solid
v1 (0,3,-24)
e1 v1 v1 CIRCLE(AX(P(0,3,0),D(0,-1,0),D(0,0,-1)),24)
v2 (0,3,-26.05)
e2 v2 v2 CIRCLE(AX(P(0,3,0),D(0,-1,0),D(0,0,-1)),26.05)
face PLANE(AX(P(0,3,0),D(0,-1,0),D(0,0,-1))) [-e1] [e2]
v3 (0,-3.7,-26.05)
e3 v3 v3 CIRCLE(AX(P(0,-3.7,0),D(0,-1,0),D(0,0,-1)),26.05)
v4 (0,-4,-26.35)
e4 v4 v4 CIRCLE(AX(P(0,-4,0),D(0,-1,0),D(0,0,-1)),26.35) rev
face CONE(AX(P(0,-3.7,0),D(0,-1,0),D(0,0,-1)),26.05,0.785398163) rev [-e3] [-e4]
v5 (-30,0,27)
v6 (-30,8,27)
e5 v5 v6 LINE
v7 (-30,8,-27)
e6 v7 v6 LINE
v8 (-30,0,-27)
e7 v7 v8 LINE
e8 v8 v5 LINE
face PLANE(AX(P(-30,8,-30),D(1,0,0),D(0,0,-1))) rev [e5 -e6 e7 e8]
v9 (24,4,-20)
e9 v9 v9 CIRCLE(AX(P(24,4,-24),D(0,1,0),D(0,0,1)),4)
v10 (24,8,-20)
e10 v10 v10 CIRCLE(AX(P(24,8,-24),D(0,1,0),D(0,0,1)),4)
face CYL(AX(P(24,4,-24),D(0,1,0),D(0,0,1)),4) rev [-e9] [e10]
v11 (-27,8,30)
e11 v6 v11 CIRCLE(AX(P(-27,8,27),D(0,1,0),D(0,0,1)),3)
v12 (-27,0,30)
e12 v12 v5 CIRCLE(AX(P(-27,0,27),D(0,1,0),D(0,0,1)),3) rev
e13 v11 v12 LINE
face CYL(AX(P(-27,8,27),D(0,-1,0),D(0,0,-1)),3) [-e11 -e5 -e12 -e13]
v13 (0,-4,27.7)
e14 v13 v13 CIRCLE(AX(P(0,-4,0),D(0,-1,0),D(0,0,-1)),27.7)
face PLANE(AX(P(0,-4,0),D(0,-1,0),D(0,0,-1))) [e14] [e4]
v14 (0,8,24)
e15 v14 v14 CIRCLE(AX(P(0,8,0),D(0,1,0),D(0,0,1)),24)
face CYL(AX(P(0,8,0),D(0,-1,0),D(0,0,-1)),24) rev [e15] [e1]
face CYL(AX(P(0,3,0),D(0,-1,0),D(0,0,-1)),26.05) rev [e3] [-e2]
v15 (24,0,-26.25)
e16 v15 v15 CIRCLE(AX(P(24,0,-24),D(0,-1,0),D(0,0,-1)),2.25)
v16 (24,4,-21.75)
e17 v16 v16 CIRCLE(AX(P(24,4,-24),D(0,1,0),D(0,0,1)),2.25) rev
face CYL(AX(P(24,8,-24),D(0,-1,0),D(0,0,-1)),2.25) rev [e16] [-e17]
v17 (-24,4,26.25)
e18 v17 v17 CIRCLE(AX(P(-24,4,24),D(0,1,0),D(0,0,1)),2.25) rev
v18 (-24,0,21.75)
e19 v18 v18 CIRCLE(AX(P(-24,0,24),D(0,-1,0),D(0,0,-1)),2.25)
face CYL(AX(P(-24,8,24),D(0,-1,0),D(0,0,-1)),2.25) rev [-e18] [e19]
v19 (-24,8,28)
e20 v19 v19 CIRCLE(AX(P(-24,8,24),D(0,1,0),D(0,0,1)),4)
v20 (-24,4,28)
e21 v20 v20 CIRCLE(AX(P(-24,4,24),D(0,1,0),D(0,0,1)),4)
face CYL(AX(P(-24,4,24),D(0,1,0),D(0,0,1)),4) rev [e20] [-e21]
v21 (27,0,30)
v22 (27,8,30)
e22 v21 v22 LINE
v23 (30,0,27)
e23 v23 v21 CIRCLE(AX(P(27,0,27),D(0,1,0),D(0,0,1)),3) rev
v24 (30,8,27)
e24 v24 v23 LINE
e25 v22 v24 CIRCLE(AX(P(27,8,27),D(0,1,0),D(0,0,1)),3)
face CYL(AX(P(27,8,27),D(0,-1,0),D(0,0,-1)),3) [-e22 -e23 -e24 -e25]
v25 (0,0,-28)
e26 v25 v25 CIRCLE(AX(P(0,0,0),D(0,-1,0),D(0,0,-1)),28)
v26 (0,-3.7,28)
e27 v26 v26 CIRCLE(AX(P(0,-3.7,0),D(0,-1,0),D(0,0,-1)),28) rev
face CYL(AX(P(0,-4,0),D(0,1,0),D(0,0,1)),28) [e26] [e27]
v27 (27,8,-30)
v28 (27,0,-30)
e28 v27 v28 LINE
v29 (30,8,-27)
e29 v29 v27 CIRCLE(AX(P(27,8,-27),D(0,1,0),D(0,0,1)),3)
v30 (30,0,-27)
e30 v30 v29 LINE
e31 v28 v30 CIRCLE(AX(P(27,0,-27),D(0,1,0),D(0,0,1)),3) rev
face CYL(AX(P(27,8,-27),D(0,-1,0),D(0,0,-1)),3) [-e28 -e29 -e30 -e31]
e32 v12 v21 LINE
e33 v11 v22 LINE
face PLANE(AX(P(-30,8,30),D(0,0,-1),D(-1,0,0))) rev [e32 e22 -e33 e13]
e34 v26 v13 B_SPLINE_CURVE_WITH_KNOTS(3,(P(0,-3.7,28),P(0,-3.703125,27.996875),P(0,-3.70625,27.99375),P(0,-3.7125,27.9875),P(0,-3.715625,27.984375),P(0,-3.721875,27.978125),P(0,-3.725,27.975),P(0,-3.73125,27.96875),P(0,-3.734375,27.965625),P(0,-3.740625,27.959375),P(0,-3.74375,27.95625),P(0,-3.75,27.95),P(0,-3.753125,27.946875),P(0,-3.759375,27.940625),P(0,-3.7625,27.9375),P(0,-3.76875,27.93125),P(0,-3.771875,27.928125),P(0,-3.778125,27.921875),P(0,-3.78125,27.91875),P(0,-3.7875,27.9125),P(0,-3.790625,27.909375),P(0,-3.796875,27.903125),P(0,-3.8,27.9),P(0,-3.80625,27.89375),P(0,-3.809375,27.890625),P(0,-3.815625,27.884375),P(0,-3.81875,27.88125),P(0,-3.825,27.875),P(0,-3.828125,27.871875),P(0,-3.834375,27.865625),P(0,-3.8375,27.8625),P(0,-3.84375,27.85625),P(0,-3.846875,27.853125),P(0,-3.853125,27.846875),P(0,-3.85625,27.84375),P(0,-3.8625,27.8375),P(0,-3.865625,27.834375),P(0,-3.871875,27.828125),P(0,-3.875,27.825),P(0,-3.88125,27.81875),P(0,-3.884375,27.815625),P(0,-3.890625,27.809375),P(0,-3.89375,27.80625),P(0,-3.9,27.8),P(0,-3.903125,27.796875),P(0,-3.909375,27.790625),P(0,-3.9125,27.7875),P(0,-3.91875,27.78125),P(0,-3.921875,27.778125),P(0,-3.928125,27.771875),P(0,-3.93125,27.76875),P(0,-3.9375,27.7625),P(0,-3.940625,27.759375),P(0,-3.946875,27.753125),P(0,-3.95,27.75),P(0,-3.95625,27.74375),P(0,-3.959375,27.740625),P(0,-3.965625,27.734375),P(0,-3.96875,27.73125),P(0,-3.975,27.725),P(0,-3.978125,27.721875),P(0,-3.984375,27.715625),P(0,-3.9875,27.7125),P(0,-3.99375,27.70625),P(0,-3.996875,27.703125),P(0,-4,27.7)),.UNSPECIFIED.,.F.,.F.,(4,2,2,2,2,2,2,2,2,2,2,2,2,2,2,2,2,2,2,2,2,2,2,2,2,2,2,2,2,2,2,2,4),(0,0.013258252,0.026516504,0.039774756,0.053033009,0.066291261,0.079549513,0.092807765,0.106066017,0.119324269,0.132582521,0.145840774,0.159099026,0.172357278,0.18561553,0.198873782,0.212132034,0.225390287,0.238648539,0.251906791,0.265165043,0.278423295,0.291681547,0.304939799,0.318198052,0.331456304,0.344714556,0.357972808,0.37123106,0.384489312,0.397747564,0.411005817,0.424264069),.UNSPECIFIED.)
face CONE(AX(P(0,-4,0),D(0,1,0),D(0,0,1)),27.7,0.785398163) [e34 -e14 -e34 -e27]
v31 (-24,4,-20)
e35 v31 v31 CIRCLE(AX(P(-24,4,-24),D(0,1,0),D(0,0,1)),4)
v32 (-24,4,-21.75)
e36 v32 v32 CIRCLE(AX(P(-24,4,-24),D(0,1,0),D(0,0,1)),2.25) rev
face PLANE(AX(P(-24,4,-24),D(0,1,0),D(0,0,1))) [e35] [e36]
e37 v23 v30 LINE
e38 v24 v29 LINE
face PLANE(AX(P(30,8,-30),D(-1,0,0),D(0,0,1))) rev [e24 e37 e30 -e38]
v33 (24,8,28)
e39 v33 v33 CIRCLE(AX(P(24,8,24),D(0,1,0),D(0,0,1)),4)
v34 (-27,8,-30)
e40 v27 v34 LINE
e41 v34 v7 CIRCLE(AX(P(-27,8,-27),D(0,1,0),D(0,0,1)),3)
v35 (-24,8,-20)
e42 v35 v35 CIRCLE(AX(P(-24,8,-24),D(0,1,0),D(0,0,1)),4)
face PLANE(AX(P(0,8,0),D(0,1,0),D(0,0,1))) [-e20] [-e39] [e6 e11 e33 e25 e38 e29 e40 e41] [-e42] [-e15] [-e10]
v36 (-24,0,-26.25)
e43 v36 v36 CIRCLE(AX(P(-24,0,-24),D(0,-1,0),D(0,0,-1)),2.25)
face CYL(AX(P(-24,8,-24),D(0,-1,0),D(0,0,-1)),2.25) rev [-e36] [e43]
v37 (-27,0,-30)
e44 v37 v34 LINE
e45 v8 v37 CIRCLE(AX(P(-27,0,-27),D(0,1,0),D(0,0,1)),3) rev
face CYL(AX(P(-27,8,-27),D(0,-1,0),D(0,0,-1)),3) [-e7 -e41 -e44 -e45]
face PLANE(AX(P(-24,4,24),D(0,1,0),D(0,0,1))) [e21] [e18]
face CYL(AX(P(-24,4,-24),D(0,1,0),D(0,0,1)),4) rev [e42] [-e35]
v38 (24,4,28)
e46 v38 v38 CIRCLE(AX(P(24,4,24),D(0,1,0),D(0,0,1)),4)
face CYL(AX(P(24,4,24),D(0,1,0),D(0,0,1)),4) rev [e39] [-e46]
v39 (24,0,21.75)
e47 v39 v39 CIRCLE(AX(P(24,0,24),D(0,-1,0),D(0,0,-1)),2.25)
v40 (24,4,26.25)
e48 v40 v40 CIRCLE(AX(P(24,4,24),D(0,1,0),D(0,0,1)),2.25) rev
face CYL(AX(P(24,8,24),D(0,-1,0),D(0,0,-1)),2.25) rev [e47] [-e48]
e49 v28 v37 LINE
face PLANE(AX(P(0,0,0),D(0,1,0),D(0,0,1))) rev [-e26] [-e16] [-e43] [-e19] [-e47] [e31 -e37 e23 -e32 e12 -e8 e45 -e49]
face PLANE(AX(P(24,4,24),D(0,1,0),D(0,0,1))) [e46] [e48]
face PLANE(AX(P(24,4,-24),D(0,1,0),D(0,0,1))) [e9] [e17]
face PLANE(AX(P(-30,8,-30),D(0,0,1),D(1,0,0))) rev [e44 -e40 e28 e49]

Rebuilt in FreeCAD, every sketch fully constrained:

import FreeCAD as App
import Part
import Sketcher
Q = App.Units.Quantity


def edges_at(feature, points):
    """Names of the edges that pass closest to the given points."""
    edges = feature.Shape.Edges
    near = lambda p: min(range(len(edges)), key=lambda i: edges[i].distToShape(Part.Vertex(*p))[0])
    return sorted({f"Edge{near(p) + 1}" for p in points})

doc = App.newDocument("Part")
body = doc.addObject("PartDesign::Body", "Body")

sketch1 = body.newObject("Sketcher::SketchObject", "Sketch")
sketch1.AttachmentSupport = (doc.getObject("XZ_Plane"), [""])
sketch1.MapMode = "FlatFace"
sketch1.addGeometry(Part.LineSegment(App.Vector(-30, -30, 0), App.Vector(-30, 30, 0)), False)
sketch1.addGeometry(Part.LineSegment(App.Vector(-30, 30, 0), App.Vector(30, 30, 0)), False)
sketch1.addGeometry(Part.LineSegment(App.Vector(30, 30, 0), App.Vector(30, -30, 0)), False)
sketch1.addGeometry(Part.LineSegment(App.Vector(30, -30, 0), App.Vector(-30, -30, 0)), False)
sketch1.addGeometry(Part.Circle(App.Vector(0, 0, 0), App.Vector(0, 0, 1), 24), False)
sketch1.addConstraint(Sketcher.Constraint("Coincident", 0, 2, 1, 1))
sketch1.addConstraint(Sketcher.Constraint("Coincident", 1, 2, 2, 1))
sketch1.addConstraint(Sketcher.Constraint("Coincident", 2, 2, 3, 1))
sketch1.addConstraint(Sketcher.Constraint("Coincident", 3, 2, 0, 1))
sketch1.addConstraint(Sketcher.Constraint("Vertical", 0))
sketch1.addConstraint(Sketcher.Constraint("Horizontal", 1))
sketch1.addConstraint(Sketcher.Constraint("Vertical", 2))
sketch1.addConstraint(Sketcher.Constraint("Horizontal", 3))
sketch1.addConstraint(Sketcher.Constraint("Coincident", 4, 3, -1, 1))
sketch1.addConstraint(Sketcher.Constraint("Symmetric", 0, 2, 2, 2, -1, 1))
sketch1.addConstraint(Sketcher.Constraint("Equal", 3, 0))
sketch1.addConstraint(Sketcher.Constraint("Diameter", 4, Q("48 mm")))
sketch1.addConstraint(Sketcher.Constraint("DistanceX", 1, 1, 1, 2, Q("60 mm")))
pad1 = body.newObject("PartDesign::Pad", "Pad")
pad1.Profile = sketch1
pad1.Length = 8
pad1.Reversed = True

sketch2 = body.newObject("Sketcher::SketchObject", "Sketch001")
sketch2.AttachmentSupport = (doc.getObject("XZ_Plane"), [""])
sketch2.MapMode = "FlatFace"
sketch2.addGeometry(Part.Circle(App.Vector(0, 0, 0), App.Vector(0, 0, 1), 28), False)
sketch2.addGeometry(Part.Circle(App.Vector(0, 0, 0), App.Vector(0, 0, 1), 26), False)
sketch2.addConstraint(Sketcher.Constraint("Coincident", 0, 3, -1, 1))
sketch2.addConstraint(Sketcher.Constraint("Coincident", 1, 3, -1, 1))
sketch2.addConstraint(Sketcher.Constraint("Diameter", 0, Q("56 mm")))
sketch2.addConstraint(Sketcher.Constraint("Diameter", 1, Q("52 mm")))
pad2 = body.newObject("PartDesign::Pad", "Pad001")
pad2.Profile = sketch2
pad2.Length = 4

sketch3 = body.newObject("Sketcher::SketchObject", "Sketch002")
sketch3.AttachmentSupport = (doc.getObject("XZ_Plane"), [""])
sketch3.MapMode = "FlatFace"
sketch3.addGeometry(Part.Circle(App.Vector(-24, 24, 0), App.Vector(0, 0, 1), 2.2), False)
sketch3.addGeometry(Part.Circle(App.Vector(24, 24, 0), App.Vector(0, 0, 1), 2.2), False)
sketch3.addGeometry(Part.Circle(App.Vector(24, -24, 0), App.Vector(0, 0, 1), 2.2), False)
sketch3.addGeometry(Part.Circle(App.Vector(-24, -24, 0), App.Vector(0, 0, 1), 2.2), False)
sketch3.addConstraint(Sketcher.Constraint("Equal", 0, 1))
sketch3.addConstraint(Sketcher.Constraint("Equal", 1, 2))
sketch3.addConstraint(Sketcher.Constraint("Equal", 2, 3))
sketch3.addConstraint(Sketcher.Constraint("Symmetric", 0, 3, 2, 3, -1, 1))
sketch3.addConstraint(Sketcher.Constraint("Symmetric", 1, 3, 3, 3, -1, 1))
sketch3.addConstraint(Sketcher.Constraint("Symmetric", 0, 3, 1, 3, -2))
sketch3.addConstraint(Sketcher.Constraint("Diameter", 0, Q("4.5 mm")))
sketch3.addConstraint(Sketcher.Constraint("DistanceX", 0, 3, -1, 1, Q("24 mm")))
sketch3.addConstraint(Sketcher.Constraint("DistanceY", -1, 1, 0, 3, Q("24 mm")))
pocket1 = body.newObject("PartDesign::Pocket", "Pocket")
pocket1.Profile = sketch3
pocket1.Type = "ThroughAll"
doc.recompute()

fillet = body.newObject("PartDesign::Fillet", "Fillet")
fillet.Base = (pocket1, edges_at(pocket1, [
    (30, 4, 30),
    (-30, 4, 30),
    (-30, 4, -30),
    (30, 4, -30),
]))
fillet.Radius = 3

sketch4 = body.newObject("Sketcher::SketchObject", "Sketch003")
sketch4.AttachmentSupport = (doc.getObject("XZ_Plane"), [""])
sketch4.MapMode = "FlatFace"
sketch4.AttachmentOffset = App.Placement(App.Vector(0, 0, 4), App.Rotation())
sketch4.addGeometry(Part.Circle(App.Vector(0, 0, 0), App.Vector(0, 0, 1), 26), False)
sketch4.addConstraint(Sketcher.Constraint("Coincident", 0, 3, -1, 1))
sketch4.addConstraint(Sketcher.Constraint("Diameter", 0, Q("52.1 mm")))
pocket2 = body.newObject("PartDesign::Pocket", "Pocket001")
pocket2.Profile = sketch4
pocket2.Length = 7

sketch5 = body.newObject("Sketcher::SketchObject", "Sketch004")
sketch5.AttachmentSupport = (doc.getObject("XZ_Plane"), [""])
sketch5.MapMode = "FlatFace"
sketch5.AttachmentOffset = App.Placement(App.Vector(0, 0, -8), App.Rotation())
sketch5.addGeometry(Part.Circle(App.Vector(-24, -24, 0), App.Vector(0, 0, 1), 4), False)
sketch5.addGeometry(Part.Circle(App.Vector(24, -24, 0), App.Vector(0, 0, 1), 4), False)
sketch5.addGeometry(Part.Circle(App.Vector(24, 24, 0), App.Vector(0, 0, 1), 4), False)
sketch5.addGeometry(Part.Circle(App.Vector(-24, 24, 0), App.Vector(0, 0, 1), 4), False)
sketch5.addConstraint(Sketcher.Constraint("Equal", 0, 1))
sketch5.addConstraint(Sketcher.Constraint("Equal", 1, 2))
sketch5.addConstraint(Sketcher.Constraint("Equal", 2, 3))
sketch5.addConstraint(Sketcher.Constraint("Symmetric", 0, 3, 2, 3, -1, 1))
sketch5.addConstraint(Sketcher.Constraint("Symmetric", 1, 3, 3, 3, -1, 1))
sketch5.addConstraint(Sketcher.Constraint("Symmetric", 0, 3, 1, 3, -2))
sketch5.addConstraint(Sketcher.Constraint("Diameter", 0, Q("8 mm")))
sketch5.addConstraint(Sketcher.Constraint("DistanceX", 0, 3, -1, 1, Q("24 mm")))
sketch5.addConstraint(Sketcher.Constraint("DistanceY", 0, 3, -1, 1, Q("24 mm")))
pocket3 = body.newObject("PartDesign::Pocket", "Pocket002")
pocket3.Profile = sketch5
pocket3.Length = 4
pocket3.Reversed = True
doc.recompute()

chamfer = body.newObject("PartDesign::Chamfer", "Chamfer")
chamfer.Base = (pocket3, edges_at(pocket3, [(0, -4, 28), (0, -4, 26.05)]))
chamfer.Size = 0.3

doc.recompute()
